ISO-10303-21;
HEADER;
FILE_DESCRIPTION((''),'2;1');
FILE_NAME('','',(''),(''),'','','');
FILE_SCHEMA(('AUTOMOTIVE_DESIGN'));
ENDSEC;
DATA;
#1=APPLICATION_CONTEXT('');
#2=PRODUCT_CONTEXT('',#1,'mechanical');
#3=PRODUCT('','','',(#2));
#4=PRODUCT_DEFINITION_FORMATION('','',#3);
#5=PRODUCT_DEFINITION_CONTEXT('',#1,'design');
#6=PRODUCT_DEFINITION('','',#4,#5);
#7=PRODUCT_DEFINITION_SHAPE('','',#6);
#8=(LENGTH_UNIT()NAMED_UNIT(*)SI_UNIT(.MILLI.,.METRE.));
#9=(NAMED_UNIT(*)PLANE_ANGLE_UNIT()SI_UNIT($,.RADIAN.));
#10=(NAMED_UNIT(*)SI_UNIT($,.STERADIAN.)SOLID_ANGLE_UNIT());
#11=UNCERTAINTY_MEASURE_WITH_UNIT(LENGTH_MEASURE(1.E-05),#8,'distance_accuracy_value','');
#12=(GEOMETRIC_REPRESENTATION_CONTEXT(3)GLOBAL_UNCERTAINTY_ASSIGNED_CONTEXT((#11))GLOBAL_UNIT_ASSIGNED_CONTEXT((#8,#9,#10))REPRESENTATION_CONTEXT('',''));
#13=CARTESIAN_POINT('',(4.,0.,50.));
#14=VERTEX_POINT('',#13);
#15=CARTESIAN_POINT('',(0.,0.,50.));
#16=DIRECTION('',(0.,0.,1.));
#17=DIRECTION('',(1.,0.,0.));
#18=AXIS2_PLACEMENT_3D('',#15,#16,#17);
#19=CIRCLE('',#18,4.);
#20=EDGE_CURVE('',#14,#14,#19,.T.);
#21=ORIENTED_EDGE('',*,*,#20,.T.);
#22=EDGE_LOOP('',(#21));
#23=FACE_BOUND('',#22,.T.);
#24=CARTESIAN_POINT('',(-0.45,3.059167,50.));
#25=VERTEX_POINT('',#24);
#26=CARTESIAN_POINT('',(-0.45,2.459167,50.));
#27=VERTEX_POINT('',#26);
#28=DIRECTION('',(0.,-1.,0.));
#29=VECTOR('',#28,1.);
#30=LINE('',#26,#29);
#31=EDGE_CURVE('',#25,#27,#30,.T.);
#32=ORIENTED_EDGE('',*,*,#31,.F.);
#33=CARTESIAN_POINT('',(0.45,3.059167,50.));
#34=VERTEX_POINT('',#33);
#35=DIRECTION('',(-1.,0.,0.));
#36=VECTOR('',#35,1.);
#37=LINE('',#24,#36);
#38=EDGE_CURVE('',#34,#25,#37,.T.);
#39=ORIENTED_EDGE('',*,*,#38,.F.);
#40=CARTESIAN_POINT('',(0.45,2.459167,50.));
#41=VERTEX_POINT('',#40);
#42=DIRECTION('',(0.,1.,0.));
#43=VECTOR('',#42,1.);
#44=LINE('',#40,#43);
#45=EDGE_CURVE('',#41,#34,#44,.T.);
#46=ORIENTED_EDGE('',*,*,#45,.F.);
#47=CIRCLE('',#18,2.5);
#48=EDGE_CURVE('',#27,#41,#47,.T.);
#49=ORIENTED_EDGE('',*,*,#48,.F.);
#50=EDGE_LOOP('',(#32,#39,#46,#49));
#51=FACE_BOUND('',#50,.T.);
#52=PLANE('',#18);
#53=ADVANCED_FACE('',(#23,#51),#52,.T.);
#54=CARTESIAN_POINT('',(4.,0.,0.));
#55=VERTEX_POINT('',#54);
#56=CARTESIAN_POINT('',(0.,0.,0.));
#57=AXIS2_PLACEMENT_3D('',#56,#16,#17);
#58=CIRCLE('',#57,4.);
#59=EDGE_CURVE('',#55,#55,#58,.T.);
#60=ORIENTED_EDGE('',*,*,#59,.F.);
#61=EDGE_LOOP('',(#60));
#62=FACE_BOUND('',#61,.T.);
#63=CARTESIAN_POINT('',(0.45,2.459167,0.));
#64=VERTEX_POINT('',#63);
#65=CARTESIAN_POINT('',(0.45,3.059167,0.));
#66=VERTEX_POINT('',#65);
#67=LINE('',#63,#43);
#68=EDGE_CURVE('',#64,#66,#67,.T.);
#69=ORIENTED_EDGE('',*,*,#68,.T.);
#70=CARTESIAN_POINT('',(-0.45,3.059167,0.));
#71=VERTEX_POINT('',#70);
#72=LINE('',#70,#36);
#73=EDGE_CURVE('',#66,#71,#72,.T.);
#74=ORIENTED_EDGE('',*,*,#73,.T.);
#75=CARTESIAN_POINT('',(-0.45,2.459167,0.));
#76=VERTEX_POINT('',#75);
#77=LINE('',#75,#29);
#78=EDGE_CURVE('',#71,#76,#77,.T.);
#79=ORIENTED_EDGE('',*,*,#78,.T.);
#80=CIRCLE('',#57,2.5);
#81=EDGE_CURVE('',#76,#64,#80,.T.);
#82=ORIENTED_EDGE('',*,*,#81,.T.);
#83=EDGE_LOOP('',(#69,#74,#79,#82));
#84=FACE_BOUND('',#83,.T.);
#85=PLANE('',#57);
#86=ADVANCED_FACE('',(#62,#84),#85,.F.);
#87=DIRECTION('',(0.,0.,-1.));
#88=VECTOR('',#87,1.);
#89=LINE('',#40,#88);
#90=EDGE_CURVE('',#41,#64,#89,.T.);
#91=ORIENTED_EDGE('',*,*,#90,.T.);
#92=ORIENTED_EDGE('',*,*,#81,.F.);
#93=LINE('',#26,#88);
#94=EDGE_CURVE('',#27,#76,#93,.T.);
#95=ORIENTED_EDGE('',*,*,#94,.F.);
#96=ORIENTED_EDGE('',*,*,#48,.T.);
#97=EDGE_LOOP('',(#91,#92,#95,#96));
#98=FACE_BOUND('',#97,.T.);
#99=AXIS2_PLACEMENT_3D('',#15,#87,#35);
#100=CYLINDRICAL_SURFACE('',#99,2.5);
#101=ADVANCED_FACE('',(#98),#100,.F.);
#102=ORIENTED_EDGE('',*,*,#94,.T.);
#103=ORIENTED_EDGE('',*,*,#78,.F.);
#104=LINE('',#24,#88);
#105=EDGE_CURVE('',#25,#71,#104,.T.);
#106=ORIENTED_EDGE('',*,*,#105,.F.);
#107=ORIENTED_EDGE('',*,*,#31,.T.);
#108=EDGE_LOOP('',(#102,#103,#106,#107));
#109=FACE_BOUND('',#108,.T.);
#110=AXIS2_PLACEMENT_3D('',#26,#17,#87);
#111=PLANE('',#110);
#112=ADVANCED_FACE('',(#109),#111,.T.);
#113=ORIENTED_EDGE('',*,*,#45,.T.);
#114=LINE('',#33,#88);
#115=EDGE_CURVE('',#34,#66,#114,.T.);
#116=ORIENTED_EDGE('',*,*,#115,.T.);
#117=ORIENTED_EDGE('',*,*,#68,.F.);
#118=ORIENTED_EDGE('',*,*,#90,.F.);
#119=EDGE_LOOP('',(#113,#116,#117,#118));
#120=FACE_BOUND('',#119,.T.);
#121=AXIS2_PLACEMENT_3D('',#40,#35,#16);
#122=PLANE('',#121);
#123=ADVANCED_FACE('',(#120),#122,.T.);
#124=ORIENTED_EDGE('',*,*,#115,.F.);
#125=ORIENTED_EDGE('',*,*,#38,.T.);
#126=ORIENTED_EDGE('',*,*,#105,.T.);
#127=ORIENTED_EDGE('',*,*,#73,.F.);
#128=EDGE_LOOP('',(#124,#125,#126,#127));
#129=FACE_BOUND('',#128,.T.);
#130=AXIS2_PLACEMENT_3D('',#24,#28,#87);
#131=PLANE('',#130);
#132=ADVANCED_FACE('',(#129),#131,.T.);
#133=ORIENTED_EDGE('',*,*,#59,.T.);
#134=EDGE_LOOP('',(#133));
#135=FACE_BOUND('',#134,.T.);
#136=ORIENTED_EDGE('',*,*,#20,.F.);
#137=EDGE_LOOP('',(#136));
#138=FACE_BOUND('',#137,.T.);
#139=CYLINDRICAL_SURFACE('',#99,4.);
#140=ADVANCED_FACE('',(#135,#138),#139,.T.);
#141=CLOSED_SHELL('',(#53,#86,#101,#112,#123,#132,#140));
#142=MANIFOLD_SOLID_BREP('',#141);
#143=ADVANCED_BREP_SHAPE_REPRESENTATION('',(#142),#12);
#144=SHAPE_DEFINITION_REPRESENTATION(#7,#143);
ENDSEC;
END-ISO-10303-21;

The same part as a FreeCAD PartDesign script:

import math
import FreeCAD as App
import Part
import Sketcher
Q = App.Units.Quantity

doc = App.newDocument("Part")
body = doc.addObject("PartDesign::Body", "Body")

# Sketch on XY plane
sketch1 = doc.addObject("Sketcher::SketchObject", "Sketch")
body.addObject(sketch1)
sketch1.AttachmentSupport = (doc.XY_Plane, [""])
sketch1.MapMode = "FlatFace"
sketch1.addGeometry([
    Part.Circle(App.Vector(0, 0, 0), App.Vector(0, 0, 1), 4),  # 0
    Part.ArcOfCircle(Part.Circle(App.Vector(0, 0, 0), App.Vector(0, 0, 1), 2.5), math.radians(100), math.radians(440)),  # 1
    Part.LineSegment(App.Vector(-0.5, 2.5, 0), App.Vector(-0.5, 3.1, 0)),  # 2
    Part.LineSegment(App.Vector(-0.5, 3.1, 0), App.Vector(0.5, 3.1, 0)),  # 3
    Part.LineSegment(App.Vector(0.5, 3.1, 0), App.Vector(0.5, 2.5, 0)),  # 4
], False)
sketch1.addConstraint([
    Sketcher.Constraint("Coincident", 1, 1, 2, 1),
    Sketcher.Constraint("Coincident", 2, 2, 3, 1),
    Sketcher.Constraint("Coincident", 3, 2, 4, 1),
    Sketcher.Constraint("Coincident", 4, 2, 1, 2),
    Sketcher.Constraint("Vertical", 2),
    Sketcher.Constraint("Horizontal", 3),
    Sketcher.Constraint("Vertical", 4),
    Sketcher.Constraint("Coincident", 0, 3, -1, 1),
    Sketcher.Constraint("Coincident", 1, 3, -1, 1),
    Sketcher.Constraint("Horizontal", 1, 1, 4, 2),
    Sketcher.Constraint("Diameter", 0, Q("8 mm")),
    Sketcher.Constraint("Radius", 1, Q("2.5 mm")),
    Sketcher.Constraint("DistanceX", 3, 1, 3, 2, Q("0.9 mm")),
    Sketcher.Constraint("DistanceY", 2, 1, 2, 2, Q("0.6 mm")),
])
pad1 = doc.addObject("PartDesign::Pad", "Pad")
body.addObject(pad1)
pad1.Profile = sketch1
pad1.Length = 50

doc.recompute()
